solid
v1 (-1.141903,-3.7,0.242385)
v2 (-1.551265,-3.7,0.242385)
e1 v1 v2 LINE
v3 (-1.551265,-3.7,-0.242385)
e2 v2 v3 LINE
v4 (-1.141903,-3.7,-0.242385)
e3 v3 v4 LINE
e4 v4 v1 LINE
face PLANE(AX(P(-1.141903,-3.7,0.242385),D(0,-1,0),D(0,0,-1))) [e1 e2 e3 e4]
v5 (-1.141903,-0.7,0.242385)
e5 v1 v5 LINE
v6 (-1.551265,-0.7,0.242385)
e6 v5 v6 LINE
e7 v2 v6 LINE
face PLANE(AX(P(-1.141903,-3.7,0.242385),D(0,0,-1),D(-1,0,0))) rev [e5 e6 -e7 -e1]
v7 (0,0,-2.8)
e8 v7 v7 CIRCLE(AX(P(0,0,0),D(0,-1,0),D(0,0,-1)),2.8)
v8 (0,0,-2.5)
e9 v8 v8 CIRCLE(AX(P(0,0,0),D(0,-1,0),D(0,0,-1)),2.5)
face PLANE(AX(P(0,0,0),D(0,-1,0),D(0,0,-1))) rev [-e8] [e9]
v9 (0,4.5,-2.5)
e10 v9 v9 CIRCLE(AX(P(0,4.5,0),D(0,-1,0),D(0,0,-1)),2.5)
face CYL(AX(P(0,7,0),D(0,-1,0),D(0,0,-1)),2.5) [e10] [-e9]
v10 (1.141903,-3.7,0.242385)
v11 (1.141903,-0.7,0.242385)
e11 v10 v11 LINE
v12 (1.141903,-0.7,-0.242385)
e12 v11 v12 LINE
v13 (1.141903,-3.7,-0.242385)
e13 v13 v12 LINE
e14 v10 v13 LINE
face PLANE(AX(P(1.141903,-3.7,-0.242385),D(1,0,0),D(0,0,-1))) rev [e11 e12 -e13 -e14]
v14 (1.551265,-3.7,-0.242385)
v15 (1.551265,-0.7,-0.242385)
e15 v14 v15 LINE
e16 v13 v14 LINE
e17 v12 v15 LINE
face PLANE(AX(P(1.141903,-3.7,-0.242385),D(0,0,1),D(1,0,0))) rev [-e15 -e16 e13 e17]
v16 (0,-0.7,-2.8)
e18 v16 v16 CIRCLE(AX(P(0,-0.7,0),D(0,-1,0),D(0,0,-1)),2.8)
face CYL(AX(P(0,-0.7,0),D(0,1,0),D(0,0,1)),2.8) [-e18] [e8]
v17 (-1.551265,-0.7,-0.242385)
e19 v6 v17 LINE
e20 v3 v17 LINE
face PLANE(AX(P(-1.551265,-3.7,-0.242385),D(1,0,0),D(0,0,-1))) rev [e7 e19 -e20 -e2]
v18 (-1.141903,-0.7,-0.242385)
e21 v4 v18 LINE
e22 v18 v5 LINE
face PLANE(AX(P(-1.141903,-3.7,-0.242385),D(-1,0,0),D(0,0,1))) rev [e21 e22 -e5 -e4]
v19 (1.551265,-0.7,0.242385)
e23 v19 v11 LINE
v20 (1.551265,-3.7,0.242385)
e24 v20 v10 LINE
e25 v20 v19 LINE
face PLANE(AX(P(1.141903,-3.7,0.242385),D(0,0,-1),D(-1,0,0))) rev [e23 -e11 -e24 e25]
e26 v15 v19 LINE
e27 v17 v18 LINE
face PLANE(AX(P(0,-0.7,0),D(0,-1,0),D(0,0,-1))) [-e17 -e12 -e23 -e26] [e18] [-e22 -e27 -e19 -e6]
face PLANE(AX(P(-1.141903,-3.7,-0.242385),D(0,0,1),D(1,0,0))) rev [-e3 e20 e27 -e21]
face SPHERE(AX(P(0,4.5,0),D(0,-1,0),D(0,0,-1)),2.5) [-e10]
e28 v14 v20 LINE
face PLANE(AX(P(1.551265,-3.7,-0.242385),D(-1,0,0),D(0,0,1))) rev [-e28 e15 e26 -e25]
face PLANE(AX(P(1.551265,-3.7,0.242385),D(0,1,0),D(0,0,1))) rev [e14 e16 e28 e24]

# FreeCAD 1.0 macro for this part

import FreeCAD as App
import Part
import Sketcher


def edges_at(feature, points):
    """Names of the edges that pass closest to the given points."""
    edges = feature.Shape.Edges
    near = lambda p: min(range(len(edges)), key=lambda i: edges[i].distToShape(Part.Vertex(*p))[0])
    return sorted({f"Edge{near(p) + 1}" for p in points})


def add_polygon(sketch, points):
    """Adds a closed chain of lines whose ends are joined by coincident constraints."""
    first, n = sketch.GeometryCount, len(points)
    for a, b in zip(points, points[1:] + points[:1]):
        sketch.addGeometry(Part.LineSegment(App.Vector(*a, 0), App.Vector(*b, 0)), False)
    for i in range(n):
        sketch.addConstraint(Sketcher.Constraint("Coincident", first + i, 2, first + (i + 1) % n, 1))

doc = App.newDocument("Part")
body = doc.addObject("PartDesign::Body", "Body")

# Sketch on XZ plane
sketch1 = body.newObject("Sketcher::SketchObject", "Sketch")
sketch1.AttachmentSupport = (doc.getObject("XZ_Plane"), [""])
sketch1.MapMode = "FlatFace"
sketch1.addGeometry(Part.Circle(App.Vector(0, 0, 0), App.Vector(0, 0, 1), 2.5), False)
sketch1.addConstraint(Sketcher.Constraint("Coincident", 0, 3, -1, 1))
sketch1.addConstraint(Sketcher.Constraint("Diameter", 0, 5.0))
pad1 = body.newObject("PartDesign::Pad", "Pad")
pad1.Profile = sketch1
pad1.Length = 7
pad1.Reversed = True

# Sketch on XZ plane
sketch2 = body.newObject("Sketcher::SketchObject", "Sketch001")
sketch2.AttachmentSupport = (doc.getObject("XZ_Plane"), [""])
sketch2.MapMode = "FlatFace"
sketch2.addGeometry(Part.Circle(App.Vector(0, 0, 0), App.Vector(0, 0, 1), 2.8), False)
sketch2.addConstraint(Sketcher.Constraint("Coincident", 0, 3, -1, 1))
sketch2.addConstraint(Sketcher.Constraint("Diameter", 0, 5.6))
pad2 = body.newObject("PartDesign::Pad", "Pad001")
pad2.Profile = sketch2
pad2.Length = 0.7
doc.recompute()

fillet = body.newObject("PartDesign::Fillet", "Fillet")
fillet.Base = (pad2, edges_at(pad2, [(0, 7, -2.5)]))
fillet.Radius = 2.5

# Sketch on XZ plane
sketch3 = body.newObject("Sketcher::SketchObject", "Sketch002")
sketch3.AttachmentSupport = (doc.getObject("XZ_Plane"), [""])
sketch3.MapMode = "FlatFace"
sketch3.AttachmentOffset = App.Placement(App.Vector(0, 0, 0.7), App.Rotation())
add_polygon(sketch3, [(1.14, 0.24), (1.14, -0.24), (1.55, -0.24), (1.55, 0.24)])  # lines 0-3
add_polygon(sketch3, [(-1.55, 0.24), (-1.55, -0.24), (-1.14, -0.24), (-1.14, 0.24)])  # lines 4-7
sketch3.addConstraint(Sketcher.Constraint("Vertical", 0))
sketch3.addConstraint(Sketcher.Constraint("Horizontal", 1))
sketch3.addConstraint(Sketcher.Constraint("Vertical", 2))
sketch3.addConstraint(Sketcher.Constraint("Horizontal", 3))
sketch3.addConstraint(Sketcher.Constraint("Vertical", 4))
sketch3.addConstraint(Sketcher.Constraint("Horizontal", 5))
sketch3.addConstraint(Sketcher.Constraint("Vertical", 6))
sketch3.addConstraint(Sketcher.Constraint("Horizontal", 7))
sketch3.addConstraint(Sketcher.Constraint("Symmetric", 2, 2, 4, 2, -1, 1))
sketch3.addConstraint(Sketcher.Constraint("Symmetric", 0, 2, 6, 2, -1, 1))
sketch3.addConstraint(Sketcher.Constraint("Horizontal", 1, 2, 4, 2))
sketch3.addConstraint(Sketcher.Constraint("DistanceX", 1, 1, 1, 2, 0.409362))
sketch3.addConstraint(Sketcher.Constraint("DistanceY", 0, 2, 0, 1, 0.48477))
sketch3.addConstraint(Sketcher.Constraint("DistanceX", 4, 2, 1, 2, 3.102529))
pad3 = body.newObject("PartDesign::Pad", "Pad002")
pad3.Profile = sketch3
pad3.Length = 3

doc.recompute()
